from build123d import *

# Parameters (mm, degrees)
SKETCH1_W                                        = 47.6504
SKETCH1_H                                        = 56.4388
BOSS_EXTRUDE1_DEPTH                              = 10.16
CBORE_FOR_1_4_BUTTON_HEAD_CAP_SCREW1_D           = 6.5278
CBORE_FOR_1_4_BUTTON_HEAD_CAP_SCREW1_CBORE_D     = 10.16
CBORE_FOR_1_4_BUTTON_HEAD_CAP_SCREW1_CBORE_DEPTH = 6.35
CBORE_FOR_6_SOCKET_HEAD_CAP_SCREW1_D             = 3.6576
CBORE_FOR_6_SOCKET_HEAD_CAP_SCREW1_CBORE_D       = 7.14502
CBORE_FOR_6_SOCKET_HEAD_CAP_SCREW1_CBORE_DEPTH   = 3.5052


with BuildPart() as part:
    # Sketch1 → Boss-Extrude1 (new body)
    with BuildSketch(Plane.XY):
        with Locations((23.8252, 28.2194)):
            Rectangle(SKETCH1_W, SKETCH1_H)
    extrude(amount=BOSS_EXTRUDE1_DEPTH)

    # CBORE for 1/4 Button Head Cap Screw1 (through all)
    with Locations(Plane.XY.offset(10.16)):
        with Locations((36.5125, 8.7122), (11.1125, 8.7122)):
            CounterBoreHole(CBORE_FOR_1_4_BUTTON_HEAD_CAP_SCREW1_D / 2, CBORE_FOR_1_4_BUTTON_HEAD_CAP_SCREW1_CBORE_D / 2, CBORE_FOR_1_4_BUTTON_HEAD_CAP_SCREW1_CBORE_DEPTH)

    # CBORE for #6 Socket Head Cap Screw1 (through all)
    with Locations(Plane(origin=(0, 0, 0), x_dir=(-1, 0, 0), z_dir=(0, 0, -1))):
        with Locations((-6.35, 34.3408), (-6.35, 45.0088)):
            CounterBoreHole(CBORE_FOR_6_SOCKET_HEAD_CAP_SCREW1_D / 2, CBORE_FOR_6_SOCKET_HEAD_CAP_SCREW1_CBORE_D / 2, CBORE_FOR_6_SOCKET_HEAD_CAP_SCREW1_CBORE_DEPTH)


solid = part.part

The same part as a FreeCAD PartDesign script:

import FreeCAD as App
import Part
import Sketcher
from FreeCAD import Vector
Q = App.Units.Quantity


def add_polygon(sketch, points):
    """Adds a closed chain of lines whose ends are joined by coincident constraints."""
    first, n = sketch.GeometryCount, len(points)
    for a, b in zip(points, points[1:] + points[:1]):
        sketch.addGeometry(Part.LineSegment(App.Vector(*a, 0), App.Vector(*b, 0)), False)
    for i in range(n):
        sketch.addConstraint(Sketcher.Constraint("Coincident", first + i, 2, first + (i + 1) % n, 1))

doc = App.newDocument("Part")
body = doc.addObject("PartDesign::Body", "Body")

sketch1 = body.newObject("Sketcher::SketchObject", "Sketch")
sketch1.AttachmentSupport = (doc.getObject("XY_Plane"), [""])
sketch1.MapMode = "FlatFace"
add_polygon(sketch1, [(0, 56), (0, 0), (48, 0), (48, 56)])
sketch1.addConstraint([
    Sketcher.Constraint("Vertical", 0),
    Sketcher.Constraint("Horizontal", 1),
    Sketcher.Constraint("Vertical", 2),
    Sketcher.Constraint("Horizontal", 3),
    Sketcher.Constraint("Coincident", 0, 2, -1, 1),
    Sketcher.Constraint("DistanceX", 1, 1, 1, 2, Q("1.876 in")),
    Sketcher.Constraint("DistanceY", 0, 2, 0, 1, Q("2.222 in")),
])
pad1 = body.newObject("PartDesign::Pad", "Pad")
pad1.Profile = sketch1
pad1.Length = Q("0.4 in")

sketch2 = body.newObject("Sketcher::SketchObject", "Sketch001")
sketch2.AttachmentSupport = (doc.getObject("XY_Plane"), [""])
sketch2.MapMode = "FlatFace"
sketch2.AttachmentOffset = App.Placement(Vector(0, 0, 0.4 * 25.4), App.Rotation())
sketch2.addGeometry([
    Part.Circle(Vector(36.5, 8.7, 0), Vector(0, 0, 1), 3.3),
    Part.Circle(Vector(11.1, 8.7, 0), Vector(0, 0, 1), 3.3),
], False)
sketch2.addConstraint([
    Sketcher.Constraint("Equal", 0, 1),
    Sketcher.Constraint("Horizontal", 0, 3, 1, 3),
    Sketcher.Constraint("Diameter", 0, Q("0.257 in")),
    Sketcher.Constraint("DistanceX", 1, 3, 0, 3, Q("1 in")),
    Sketcher.Constraint("DistanceX", -1, 1, 0, 3, Q("1.4375 in")),
    Sketcher.Constraint("DistanceY", -1, 1, 0, 3, Q("0.343 in")),
])
doc.recompute()
hole = body.newObject("PartDesign::Hole", "Hole")
hole.Profile = sketch2
hole.ThreadType = "None"
hole.Diameter = Q("0.257 in")
hole.DepthType = "ThroughAll"
hole.HoleCutType = "Counterbore"
hole.HoleCutDiameter = Q("0.4 in")
hole.HoleCutDepth = Q("0.25 in")

sketch3 = body.newObject("Sketcher::SketchObject", "Sketch002")
sketch3.AttachmentSupport = (doc.getObject("XY_Plane"), [""])
sketch3.MapMode = "FlatFace"
sketch3.addGeometry([
    Part.Circle(Vector(6.3, 34.3, 0), Vector(0, 0, 1), 1.8),
    Part.Circle(Vector(6.3, 45, 0), Vector(0, 0, 1), 1.8),
], False)
sketch3.addConstraint([
    Sketcher.Constraint("Equal", 0, 1),
    Sketcher.Constraint("Vertical", 0, 3, 1, 3),
    Sketcher.Constraint("Diameter", 0, Q("0.144 in")),
    Sketcher.Constraint("DistanceX", -1, 1, 0, 3, Q("0.25 in")),
    Sketcher.Constraint("DistanceY", 0, 3, 1, 3, Q("0.42 in")),
    Sketcher.Constraint("DistanceY", -1, 1, 0, 3, Q("1.352 in")),
])
doc.recompute()
hole2 = body.newObject("PartDesign::Hole", "Hole001")
hole2.Profile = sketch3
hole2.ThreadType = "None"
hole2.Diameter = Q("0.144 in")
hole2.DepthType = "ThroughAll"
hole2.HoleCutType = "Counterbore"
hole2.HoleCutDiameter = Q("0.2813 in")
hole2.HoleCutDepth = Q("0.138 in")
hole2.Reversed = True

doc.recompute()
